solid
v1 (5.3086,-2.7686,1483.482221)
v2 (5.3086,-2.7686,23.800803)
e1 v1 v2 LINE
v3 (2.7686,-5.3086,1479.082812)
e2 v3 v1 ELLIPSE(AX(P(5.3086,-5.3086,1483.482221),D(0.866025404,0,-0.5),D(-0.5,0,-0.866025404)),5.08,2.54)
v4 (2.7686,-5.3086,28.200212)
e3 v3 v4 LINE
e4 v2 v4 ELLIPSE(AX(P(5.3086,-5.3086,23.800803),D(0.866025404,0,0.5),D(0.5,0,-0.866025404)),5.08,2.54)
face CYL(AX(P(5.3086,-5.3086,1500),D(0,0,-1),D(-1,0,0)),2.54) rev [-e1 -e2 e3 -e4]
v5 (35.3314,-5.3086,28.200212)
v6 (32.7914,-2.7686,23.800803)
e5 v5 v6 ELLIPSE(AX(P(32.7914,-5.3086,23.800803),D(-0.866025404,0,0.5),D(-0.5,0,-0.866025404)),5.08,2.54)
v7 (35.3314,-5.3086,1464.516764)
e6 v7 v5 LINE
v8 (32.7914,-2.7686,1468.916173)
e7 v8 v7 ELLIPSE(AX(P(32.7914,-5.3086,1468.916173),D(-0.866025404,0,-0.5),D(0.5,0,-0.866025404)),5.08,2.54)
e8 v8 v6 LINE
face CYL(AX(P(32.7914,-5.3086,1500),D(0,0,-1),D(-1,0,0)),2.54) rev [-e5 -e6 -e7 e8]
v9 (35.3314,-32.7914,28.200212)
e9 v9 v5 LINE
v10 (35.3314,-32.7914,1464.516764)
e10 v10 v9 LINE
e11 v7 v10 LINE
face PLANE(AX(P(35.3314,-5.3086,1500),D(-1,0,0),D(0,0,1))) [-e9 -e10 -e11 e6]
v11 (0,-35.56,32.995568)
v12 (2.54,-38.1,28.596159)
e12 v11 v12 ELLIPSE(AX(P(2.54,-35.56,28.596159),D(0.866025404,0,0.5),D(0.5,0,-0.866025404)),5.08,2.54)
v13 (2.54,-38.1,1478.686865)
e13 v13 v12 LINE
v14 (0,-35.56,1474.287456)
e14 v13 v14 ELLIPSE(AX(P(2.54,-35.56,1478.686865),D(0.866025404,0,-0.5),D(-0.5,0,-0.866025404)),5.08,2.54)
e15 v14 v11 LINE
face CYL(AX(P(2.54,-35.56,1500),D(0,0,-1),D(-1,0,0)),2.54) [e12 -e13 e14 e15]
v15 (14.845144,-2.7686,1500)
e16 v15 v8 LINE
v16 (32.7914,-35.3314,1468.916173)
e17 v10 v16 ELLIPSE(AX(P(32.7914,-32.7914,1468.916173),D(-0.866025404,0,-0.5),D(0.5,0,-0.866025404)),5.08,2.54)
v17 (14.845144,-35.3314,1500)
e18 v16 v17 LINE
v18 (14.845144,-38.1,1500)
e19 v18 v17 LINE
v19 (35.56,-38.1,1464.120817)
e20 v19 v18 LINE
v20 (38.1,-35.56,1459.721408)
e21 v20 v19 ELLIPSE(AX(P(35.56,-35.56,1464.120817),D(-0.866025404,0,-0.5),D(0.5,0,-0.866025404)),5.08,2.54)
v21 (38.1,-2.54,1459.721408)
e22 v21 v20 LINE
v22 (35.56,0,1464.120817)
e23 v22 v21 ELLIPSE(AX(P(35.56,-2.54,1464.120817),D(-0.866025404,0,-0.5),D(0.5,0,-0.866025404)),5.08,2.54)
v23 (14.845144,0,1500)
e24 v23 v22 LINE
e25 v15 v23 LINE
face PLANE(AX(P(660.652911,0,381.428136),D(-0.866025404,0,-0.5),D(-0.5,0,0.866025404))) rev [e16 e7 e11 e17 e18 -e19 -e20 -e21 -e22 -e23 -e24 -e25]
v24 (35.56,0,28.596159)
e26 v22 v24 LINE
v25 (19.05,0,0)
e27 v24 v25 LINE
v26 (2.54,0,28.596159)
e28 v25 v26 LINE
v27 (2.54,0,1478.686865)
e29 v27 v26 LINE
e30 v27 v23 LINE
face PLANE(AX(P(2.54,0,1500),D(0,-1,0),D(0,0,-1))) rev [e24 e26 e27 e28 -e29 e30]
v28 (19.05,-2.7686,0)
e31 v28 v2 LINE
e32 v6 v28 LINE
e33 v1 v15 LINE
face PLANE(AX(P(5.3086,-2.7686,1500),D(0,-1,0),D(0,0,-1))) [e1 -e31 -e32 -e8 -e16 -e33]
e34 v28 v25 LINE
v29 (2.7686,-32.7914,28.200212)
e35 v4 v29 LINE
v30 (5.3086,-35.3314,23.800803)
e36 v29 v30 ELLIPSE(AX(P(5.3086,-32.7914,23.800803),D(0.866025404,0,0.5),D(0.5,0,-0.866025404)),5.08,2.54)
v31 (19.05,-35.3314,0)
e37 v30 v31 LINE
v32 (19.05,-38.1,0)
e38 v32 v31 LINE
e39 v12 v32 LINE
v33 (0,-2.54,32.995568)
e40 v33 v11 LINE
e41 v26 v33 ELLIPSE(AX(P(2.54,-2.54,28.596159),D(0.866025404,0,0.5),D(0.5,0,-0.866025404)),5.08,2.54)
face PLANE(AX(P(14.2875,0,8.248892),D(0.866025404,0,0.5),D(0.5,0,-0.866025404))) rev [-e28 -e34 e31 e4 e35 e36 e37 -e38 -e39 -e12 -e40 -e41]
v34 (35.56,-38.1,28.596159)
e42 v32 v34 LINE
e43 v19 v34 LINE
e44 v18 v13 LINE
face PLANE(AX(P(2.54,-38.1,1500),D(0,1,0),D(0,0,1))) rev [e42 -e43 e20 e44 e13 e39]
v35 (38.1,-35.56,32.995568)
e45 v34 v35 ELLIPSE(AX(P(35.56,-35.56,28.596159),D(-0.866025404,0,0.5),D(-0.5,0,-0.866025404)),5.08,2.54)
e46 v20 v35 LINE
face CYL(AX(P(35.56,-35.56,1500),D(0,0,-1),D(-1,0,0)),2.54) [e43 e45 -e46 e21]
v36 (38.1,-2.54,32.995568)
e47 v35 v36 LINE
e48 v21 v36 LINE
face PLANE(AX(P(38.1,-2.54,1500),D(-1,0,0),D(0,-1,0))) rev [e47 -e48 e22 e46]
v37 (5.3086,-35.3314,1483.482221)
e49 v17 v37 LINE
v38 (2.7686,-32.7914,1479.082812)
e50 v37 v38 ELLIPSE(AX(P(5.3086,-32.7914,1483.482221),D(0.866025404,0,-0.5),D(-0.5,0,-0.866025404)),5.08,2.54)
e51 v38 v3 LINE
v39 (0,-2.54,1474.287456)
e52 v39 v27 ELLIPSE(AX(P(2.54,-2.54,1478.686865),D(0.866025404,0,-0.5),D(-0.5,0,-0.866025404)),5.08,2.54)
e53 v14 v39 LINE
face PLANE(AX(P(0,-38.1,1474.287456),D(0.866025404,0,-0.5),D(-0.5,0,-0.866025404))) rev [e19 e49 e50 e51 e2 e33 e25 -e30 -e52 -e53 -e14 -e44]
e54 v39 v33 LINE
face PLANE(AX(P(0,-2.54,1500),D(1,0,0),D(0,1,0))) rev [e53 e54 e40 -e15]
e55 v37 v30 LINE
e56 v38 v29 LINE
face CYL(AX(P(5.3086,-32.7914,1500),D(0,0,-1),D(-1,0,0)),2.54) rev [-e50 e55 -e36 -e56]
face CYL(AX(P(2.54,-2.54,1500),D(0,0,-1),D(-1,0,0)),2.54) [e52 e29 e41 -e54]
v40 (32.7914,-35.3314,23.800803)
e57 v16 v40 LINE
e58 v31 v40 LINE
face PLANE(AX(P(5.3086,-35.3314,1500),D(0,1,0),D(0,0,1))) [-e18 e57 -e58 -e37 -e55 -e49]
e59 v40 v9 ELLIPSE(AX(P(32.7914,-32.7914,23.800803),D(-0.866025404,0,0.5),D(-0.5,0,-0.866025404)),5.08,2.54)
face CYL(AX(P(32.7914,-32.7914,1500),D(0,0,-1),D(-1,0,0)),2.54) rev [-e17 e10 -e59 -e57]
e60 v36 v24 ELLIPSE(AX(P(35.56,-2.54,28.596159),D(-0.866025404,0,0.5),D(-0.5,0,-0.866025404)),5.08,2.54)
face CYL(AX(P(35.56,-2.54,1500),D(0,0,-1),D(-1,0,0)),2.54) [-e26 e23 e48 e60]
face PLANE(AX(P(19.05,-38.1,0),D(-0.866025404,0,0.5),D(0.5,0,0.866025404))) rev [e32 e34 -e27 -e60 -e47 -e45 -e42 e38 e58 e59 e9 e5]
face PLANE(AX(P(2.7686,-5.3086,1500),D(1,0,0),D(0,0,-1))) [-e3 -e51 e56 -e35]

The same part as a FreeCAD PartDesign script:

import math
import FreeCAD as App
import Part
import Sketcher

V = App.Vector
Q = App.Units.Quantity

doc = App.newDocument("Part")
body = doc.addObject("PartDesign::Body", "Body")

# Sketch on XY plane
sketch1 = body.newObject("Sketcher::SketchObject", "Sketch")
sketch1.AttachmentSupport = (doc.getObject("XY_Plane"), [""])
sketch1.MapMode = "FlatFace"
sketch1.addGeometry([
    Part.LineSegment(V(35.6, 0, 0), V(2.5, 0, 0)),  # 0
    Part.ArcOfCircle(Part.Circle(V(2.5, -2.5, 0), V(0, 0, 1), 2.5), math.radians(90), math.radians(180)),  # 1
    Part.LineSegment(V(0, -2.5, 0), V(0, -35.6, 0)),  # 2
    Part.ArcOfCircle(Part.Circle(V(2.5, -35.6, 0), V(0, 0, 1), 2.5), math.radians(-180), math.radians(-90)),  # 3
    Part.LineSegment(V(2.5, -38.1, 0), V(35.6, -38.1, 0)),  # 4
    Part.ArcOfCircle(Part.Circle(V(35.6, -35.6, 0), V(0, 0, 1), 2.5), math.radians(-90), math.radians(0)),  # 5
    Part.LineSegment(V(38.1, -35.6, 0), V(38.1, -2.5, 0)),  # 6
    Part.ArcOfCircle(Part.Circle(V(35.6, -2.5, 0), V(0, 0, 1), 2.5), math.radians(0), math.radians(90)),  # 7
    Part.LineSegment(V(5.3, -2.8, 0), V(32.8, -2.8, 0)),  # 8
    Part.ArcOfCircle(Part.Circle(V(32.8, -5.3, 0), V(0, 0, 1), 2.5), math.radians(0), math.radians(90)),  # 9
    Part.LineSegment(V(35.3, -5.3, 0), V(35.3, -32.8, 0)),  # 10
    Part.ArcOfCircle(Part.Circle(V(32.8, -32.8, 0), V(0, 0, 1), 2.5), math.radians(-90), math.radians(0)),  # 11
    Part.LineSegment(V(32.8, -35.3, 0), V(5.3, -35.3, 0)),  # 12
    Part.ArcOfCircle(Part.Circle(V(5.3, -32.8, 0), V(0, 0, 1), 2.5), math.radians(-180), math.radians(-90)),  # 13
    Part.LineSegment(V(2.8, -32.8, 0), V(2.8, -5.3, 0)),  # 14
    Part.ArcOfCircle(Part.Circle(V(5.3, -5.3, 0), V(0, 0, 1), 2.5), math.radians(90), math.radians(180)),  # 15
], False)
sketch1.addConstraint([
    Sketcher.Constraint("Tangent", 0, 2, 1, 1),
    Sketcher.Constraint("Tangent", 1, 2, 2, 1),
    Sketcher.Constraint("Tangent", 2, 2, 3, 1),
    Sketcher.Constraint("Tangent", 3, 2, 4, 1),
    Sketcher.Constraint("Tangent", 4, 2, 5, 1),
    Sketcher.Constraint("Tangent", 5, 2, 6, 1),
    Sketcher.Constraint("Tangent", 6, 2, 7, 1),
    Sketcher.Constraint("Tangent", 7, 2, 0, 1),
    Sketcher.Constraint("Tangent", 8, 2, 9, 2),
    Sketcher.Constraint("Tangent", 9, 1, 10, 1),
    Sketcher.Constraint("Tangent", 10, 2, 11, 2),
    Sketcher.Constraint("Tangent", 11, 1, 12, 1),
    Sketcher.Constraint("Tangent", 12, 2, 13, 2),
    Sketcher.Constraint("Tangent", 13, 1, 14, 1),
    Sketcher.Constraint("Tangent", 14, 2, 15, 2),
    Sketcher.Constraint("Tangent", 15, 1, 8, 1),
    Sketcher.Constraint("Horizontal", 0),
    Sketcher.Constraint("Vertical", 2),
    Sketcher.Constraint("Horizontal", 4),
    Sketcher.Constraint("Vertical", 6),
    Sketcher.Constraint("Horizontal", 8),
    Sketcher.Constraint("Vertical", 10),
    Sketcher.Constraint("Horizontal", 12),
    Sketcher.Constraint("Vertical", 14),
    Sketcher.Constraint("Equal", 1, 3),
    Sketcher.Constraint("Equal", 3, 5),
    Sketcher.Constraint("Equal", 5, 7),
    Sketcher.Constraint("Equal", 7, 9),
    Sketcher.Constraint("Equal", 9, 11),
    Sketcher.Constraint("Equal", 11, 13),
    Sketcher.Constraint("Equal", 13, 15),
    Sketcher.Constraint("PointOnObject", 0, 2, -1),
    Sketcher.Constraint("PointOnObject", 1, 2, -2),
    Sketcher.Constraint("Equal", 4, 2),
    Sketcher.Constraint("Equal", 12, 10),
    Sketcher.Constraint("Radius", 1, Q("0.1 in")),
    Sketcher.Constraint("DistanceX", 0, 2, 0, 1, Q("1.3 in")),
    Sketcher.Constraint("DistanceX", 8, 1, 8, 2, Q("1.082 in")),
    Sketcher.Constraint("DistanceX", -1, 1, 9, 3, Q("1.291 in")),
    Sketcher.Constraint("DistanceY", 9, 3, -1, 1, Q("0.209 in")),
])
pad1 = body.newObject("PartDesign::Pad", "Pad")
pad1.Profile = sketch1
pad1.Length = 1500

# Sketch on XZ plane
sketch2 = body.newObject("Sketcher::SketchObject", "Sketch001")
sketch2.AttachmentSupport = (doc.getObject("XZ_Plane"), [""])
sketch2.MapMode = "FlatFace"
sketch2.addGeometry([
    Part.LineSegment(V(19, 0, 0), V(38, 33, 0)),  # 0
    Part.LineSegment(V(38, 33, 0), V(38, 0, 0)),  # 1
    Part.LineSegment(V(38, 0, 0), V(19, 0, 0)),  # 2
    Part.LineSegment(V(0, 1474, 0), V(0, 1500, 0)),  # 3
    Part.LineSegment(V(0, 1500, 0), V(15, 1500, 0)),  # 4
    Part.LineSegment(V(15, 1500, 0), V(0, 1474, 0)),  # 5
], False)
sketch2.addConstraint([
    Sketcher.Constraint("Coincident", 0, 2, 1, 1),
    Sketcher.Constraint("Coincident", 1, 2, 2, 1),
    Sketcher.Constraint("Coincident", 2, 2, 0, 1),
    Sketcher.Constraint("Coincident", 3, 2, 4, 1),
    Sketcher.Constraint("Coincident", 4, 2, 5, 1),
    Sketcher.Constraint("Coincident", 5, 2, 3, 1),
    Sketcher.Constraint("Vertical", 1),
    Sketcher.Constraint("Horizontal", 2),
    Sketcher.Constraint("Vertical", 3),
    Sketcher.Constraint("Horizontal", 4),
    Sketcher.Constraint("PointOnObject", 1, 2, -1),
    Sketcher.Constraint("PointOnObject", 3, 2, -2),
    Sketcher.Constraint("Parallel", 0, 5),
    Sketcher.Constraint("Angle", 0, Q("60 deg")),
    Sketcher.Constraint("Distance", 0, Q("1.5 in")),
    Sketcher.Constraint("DistanceX", -1, 1, 0, 2, Q("1.5 in")),
    Sketcher.Constraint("DistanceY", -1, 1, 3, 2, Q("1500 mm")),
    Sketcher.Constraint("Distance", 5, Q("29.690288 mm")),
])
pocket1 = body.newObject("PartDesign::Pocket", "Pocket")
pocket1.Profile = sketch2
pocket1.Type = "ThroughAll"
pocket1.Midplane = True

# Sketch on XZ plane
sketch3 = body.newObject("Sketcher::SketchObject", "Sketch002")
sketch3.AttachmentSupport = (doc.getObject("XZ_Plane"), [""])
sketch3.MapMode = "FlatFace"
sketch3.AttachmentOffset = App.Placement(V(0, 0, 1.5 * 25.4), App.Rotation())
sketch3.addGeometry([
    Part.LineSegment(V(15, 1500, 0), V(36, 1464, 0)),  # 0
    Part.LineSegment(V(36, 1464, 0), V(38, 1460, 0)),  # 1
    Part.LineSegment(V(38, 1460, 0), V(38, 1500, 0)),  # 2
    Part.LineSegment(V(38, 1500, 0), V(15, 1500, 0)),  # 3
    Part.LineSegment(V(3, 29, 0), V(0, 33, 0)),  # 4
    Part.LineSegment(V(0, 33, 0), V(0, 0, 0)),  # 5
    Part.LineSegment(V(0, 0, 0), V(19, 0, 0)),  # 6
    Part.LineSegment(V(19, 0, 0), V(3, 29, 0)),  # 7
], False)
sketch3.addConstraint([
    Sketcher.Constraint("Coincident", 0, 2, 1, 1),
    Sketcher.Constraint("Coincident", 1, 2, 2, 1),
    Sketcher.Constraint("Coincident", 2, 2, 3, 1),
    Sketcher.Constraint("Coincident", 3, 2, 0, 1),
    Sketcher.Constraint("Coincident", 4, 2, 5, 1),
    Sketcher.Constraint("Coincident", 5, 2, 6, 1),
    Sketcher.Constraint("Coincident", 6, 2, 7, 1),
    Sketcher.Constraint("Coincident", 7, 2, 4, 1),
    Sketcher.Constraint("Vertical", 2),
    Sketcher.Constraint("Horizontal", 3),
    Sketcher.Constraint("Vertical", 5),
    Sketcher.Constraint("Horizontal", 6),
    Sketcher.Constraint("Coincident", 5, 2, -1, 1),
    Sketcher.Constraint("Parallel", 0, 1),
    Sketcher.Constraint("Parallel", 1, 4),
    Sketcher.Constraint("Parallel", 4, 7),
    Sketcher.Constraint("Equal", 1, 4),
    Sketcher.Constraint("Angle", 0, Q("-60 deg")),
    Sketcher.Constraint("Distance", 1, Q("0.2 in")),
    Sketcher.Constraint("Distance", 7, Q("1.3 in")),
    Sketcher.Constraint("DistanceX", -1, 1, 0, 2, Q("1.4 in")),
    Sketcher.Constraint("DistanceY", 2, 1, 2, 2, Q("40.278592 mm")),
    Sketcher.Constraint("DistanceY", -1, 1, 2, 2, Q("1500 mm")),
])
pocket2 = body.newObject("PartDesign::Pocket", "Pocket001")
pocket2.Profile = sketch3
pocket2.Type = "ThroughAll"
pocket2.Midplane = True

doc.recompute()
